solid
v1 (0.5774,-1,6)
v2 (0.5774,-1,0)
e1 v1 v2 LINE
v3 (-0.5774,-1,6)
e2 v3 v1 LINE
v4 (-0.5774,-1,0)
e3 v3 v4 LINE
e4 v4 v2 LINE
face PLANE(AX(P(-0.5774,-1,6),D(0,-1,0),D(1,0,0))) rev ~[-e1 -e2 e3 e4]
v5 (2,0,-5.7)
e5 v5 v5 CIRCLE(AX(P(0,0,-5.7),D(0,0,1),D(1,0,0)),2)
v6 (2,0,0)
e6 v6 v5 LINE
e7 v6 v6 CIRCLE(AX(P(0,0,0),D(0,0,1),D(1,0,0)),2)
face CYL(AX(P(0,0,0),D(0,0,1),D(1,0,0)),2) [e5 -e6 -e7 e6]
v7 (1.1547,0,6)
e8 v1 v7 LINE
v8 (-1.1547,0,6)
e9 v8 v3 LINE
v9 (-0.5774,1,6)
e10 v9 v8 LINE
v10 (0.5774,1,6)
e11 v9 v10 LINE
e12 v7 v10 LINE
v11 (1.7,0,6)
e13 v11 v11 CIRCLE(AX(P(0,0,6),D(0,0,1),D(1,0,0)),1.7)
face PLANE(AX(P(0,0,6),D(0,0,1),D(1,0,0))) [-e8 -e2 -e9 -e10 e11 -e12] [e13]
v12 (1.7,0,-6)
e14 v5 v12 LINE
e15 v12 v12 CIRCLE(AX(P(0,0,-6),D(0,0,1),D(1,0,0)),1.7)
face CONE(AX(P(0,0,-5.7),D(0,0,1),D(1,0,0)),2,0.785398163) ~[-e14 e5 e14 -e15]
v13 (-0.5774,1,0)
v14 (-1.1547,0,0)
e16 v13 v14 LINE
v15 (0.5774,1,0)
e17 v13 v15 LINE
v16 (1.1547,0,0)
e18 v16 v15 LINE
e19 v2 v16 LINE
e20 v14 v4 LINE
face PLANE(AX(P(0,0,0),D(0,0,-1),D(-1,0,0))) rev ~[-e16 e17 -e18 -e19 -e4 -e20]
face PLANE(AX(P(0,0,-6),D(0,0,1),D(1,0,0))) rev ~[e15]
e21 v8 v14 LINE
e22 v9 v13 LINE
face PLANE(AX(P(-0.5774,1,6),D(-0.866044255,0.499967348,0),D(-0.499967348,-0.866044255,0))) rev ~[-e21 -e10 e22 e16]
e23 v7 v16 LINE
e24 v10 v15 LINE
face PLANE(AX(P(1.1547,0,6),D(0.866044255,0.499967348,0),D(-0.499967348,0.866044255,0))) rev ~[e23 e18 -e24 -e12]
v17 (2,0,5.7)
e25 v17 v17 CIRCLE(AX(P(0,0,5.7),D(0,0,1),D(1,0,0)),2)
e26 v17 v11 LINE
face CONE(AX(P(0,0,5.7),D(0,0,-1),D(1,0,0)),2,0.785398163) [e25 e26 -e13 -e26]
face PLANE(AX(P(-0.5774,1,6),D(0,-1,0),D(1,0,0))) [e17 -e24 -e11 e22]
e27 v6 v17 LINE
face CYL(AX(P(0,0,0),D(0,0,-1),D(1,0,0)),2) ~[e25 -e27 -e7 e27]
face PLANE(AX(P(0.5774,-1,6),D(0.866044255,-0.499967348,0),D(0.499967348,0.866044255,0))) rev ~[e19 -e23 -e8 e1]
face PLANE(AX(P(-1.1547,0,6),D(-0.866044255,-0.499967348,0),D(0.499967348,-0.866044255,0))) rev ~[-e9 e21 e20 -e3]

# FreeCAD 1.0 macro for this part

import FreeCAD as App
import Part
import Sketcher
Q = App.Units.Quantity


def edges_at(feature, points):
    """Names of the edges that pass closest to the given points."""
    edges = feature.Shape.Edges
    near = lambda p: min(range(len(edges)), key=lambda i: edges[i].distToShape(Part.Vertex(*p))[0])
    return sorted({f"Edge{near(p) + 1}" for p in points})

doc = App.newDocument("Part")
body = doc.addObject("PartDesign::Body", "Body")

sketch1 = body.newObject("Sketcher::SketchObject", "Sketch")
sketch1.AttachmentSupport = (doc.getObject("XY_Plane"), [""])
sketch1.MapMode = "FlatFace"
sketch1.addGeometry(Part.Circle(App.Vector(0, 0, 0), App.Vector(0, 0, 1), 2), False)
sketch1.addConstraint(Sketcher.Constraint("Coincident", 0, 3, -1, 1))
sketch1.addConstraint(Sketcher.Constraint("Diameter", 0, Q("4 mm")))
pad1 = body.newObject("PartDesign::Pad", "Pad")
pad1.Profile = sketch1
pad1.Length = 12
pad1.Midplane = True
doc.recompute()

chamfer = body.newObject("PartDesign::Chamfer", "Chamfer")
chamfer.Base = (pad1, edges_at(pad1, [(-2, 0, -6), (-2, 0, 6)]))
chamfer.Size = 0.3

sketch2 = body.newObject("Sketcher::SketchObject", "Sketch001")
sketch2.AttachmentSupport = (doc.getObject("XY_Plane"), [""])
sketch2.MapMode = "FlatFace"
sketch2.AttachmentOffset = App.Placement(App.Vector(0, 0, 6), App.Rotation())
sketch2.addGeometry(Part.LineSegment(App.Vector(0.6, 1, 0), App.Vector(-0.6, 1, 0)), False)
sketch2.addGeometry(Part.LineSegment(App.Vector(-0.6, 1, 0), App.Vector(-1.2, 0, 0)), False)
sketch2.addGeometry(Part.LineSegment(App.Vector(-1.2, 0, 0), App.Vector(-0.6, -1, 0)), False)
sketch2.addGeometry(Part.LineSegment(App.Vector(-0.6, -1, 0), App.Vector(0.6, -1, 0)), False)
sketch2.addGeometry(Part.LineSegment(App.Vector(0.6, -1, 0), App.Vector(1.2, 0, 0)), False)
sketch2.addGeometry(Part.LineSegment(App.Vector(1.2, 0, 0), App.Vector(0.6, 1, 0)), False)
sketch2.addConstraint(Sketcher.Constraint("Coincident", 0, 2, 1, 1))
sketch2.addConstraint(Sketcher.Constraint("Coincident", 1, 2, 2, 1))
sketch2.addConstraint(Sketcher.Constraint("Coincident", 2, 2, 3, 1))
sketch2.addConstraint(Sketcher.Constraint("Coincident", 3, 2, 4, 1))
sketch2.addConstraint(Sketcher.Constraint("Coincident", 4, 2, 5, 1))
sketch2.addConstraint(Sketcher.Constraint("Coincident", 5, 2, 0, 1))
sketch2.addConstraint(Sketcher.Constraint("Horizontal", 0))
sketch2.addConstraint(Sketcher.Constraint("Horizontal", 3))
sketch2.addConstraint(Sketcher.Constraint("Symmetric", 0, 2, 3, 2, -1, 1))
sketch2.addConstraint(Sketcher.Constraint("Symmetric", 1, 2, 4, 2, -1, 1))
sketch2.addConstraint(Sketcher.Constraint("PointOnObject", 1, 2, -1))
sketch2.addConstraint(Sketcher.Constraint("Parallel", 2, 5))
sketch2.addConstraint(Sketcher.Constraint("Vertical", 0, 2, 2, 2))
sketch2.addConstraint(Sketcher.Constraint("DistanceY", -1, 1, 0, 2, Q("1 mm")))
sketch2.addConstraint(Sketcher.Constraint("DistanceX", 0, 2, 0, 1, Q("1.1548 mm")))
sketch2.addConstraint(Sketcher.Constraint("DistanceX", 1, 2, 3, 2, Q("1.732 mm")))
pocket1 = body.newObject("PartDesign::Pocket", "Pocket")
pocket1.Profile = sketch2
pocket1.Length = 6

doc.recompute()
